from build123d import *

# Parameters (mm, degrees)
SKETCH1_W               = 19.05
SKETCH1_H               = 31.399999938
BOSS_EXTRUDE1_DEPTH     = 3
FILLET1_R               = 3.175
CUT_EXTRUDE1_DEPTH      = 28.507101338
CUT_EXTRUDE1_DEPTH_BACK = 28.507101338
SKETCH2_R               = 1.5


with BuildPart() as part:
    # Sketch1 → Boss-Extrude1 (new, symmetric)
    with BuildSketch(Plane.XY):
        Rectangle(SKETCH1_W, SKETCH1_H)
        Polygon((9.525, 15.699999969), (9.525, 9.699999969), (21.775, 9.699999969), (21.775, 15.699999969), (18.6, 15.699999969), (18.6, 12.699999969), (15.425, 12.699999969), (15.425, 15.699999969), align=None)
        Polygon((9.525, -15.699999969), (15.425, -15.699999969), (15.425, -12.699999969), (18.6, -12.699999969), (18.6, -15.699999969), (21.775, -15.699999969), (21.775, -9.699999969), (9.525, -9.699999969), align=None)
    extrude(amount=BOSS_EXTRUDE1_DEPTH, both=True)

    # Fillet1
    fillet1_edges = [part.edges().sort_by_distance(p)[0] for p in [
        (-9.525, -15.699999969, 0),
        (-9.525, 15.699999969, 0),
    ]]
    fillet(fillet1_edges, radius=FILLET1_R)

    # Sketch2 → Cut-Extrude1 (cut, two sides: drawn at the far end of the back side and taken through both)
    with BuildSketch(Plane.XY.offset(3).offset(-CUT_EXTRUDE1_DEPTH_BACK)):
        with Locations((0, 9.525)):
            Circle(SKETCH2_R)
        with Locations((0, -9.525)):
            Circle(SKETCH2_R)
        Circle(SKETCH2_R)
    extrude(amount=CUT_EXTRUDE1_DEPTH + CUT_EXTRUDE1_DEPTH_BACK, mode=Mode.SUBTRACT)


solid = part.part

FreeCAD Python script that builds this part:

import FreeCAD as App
import Part
import Sketcher
from FreeCAD import Vector


def edges_at(feature, points):
    """Names of the edges that pass closest to the given points."""
    edges = feature.Shape.Edges
    near = lambda p: min(range(len(edges)), key=lambda i: edges[i].distToShape(Part.Vertex(*p))[0])
    return sorted({f"Edge{near(p) + 1}" for p in points})


def add_polygon(sketch, points):
    """Adds a closed chain of lines whose ends are joined by coincident constraints."""
    first, n = sketch.GeometryCount, len(points)
    for a, b in zip(points, points[1:] + points[:1]):
        sketch.addGeometry(Part.LineSegment(App.Vector(*a, 0), App.Vector(*b, 0)), False)
    for i in range(n):
        sketch.addConstraint(Sketcher.Constraint("Coincident", first + i, 2, first + (i + 1) % n, 1))

doc = App.newDocument("Part")
body = doc.addObject("PartDesign::Body", "Body")

sketch1 = body.newObject("Sketcher::SketchObject", "Sketch")
sketch1.AttachmentSupport = (doc.getObject("XY_Plane"), [""])
sketch1.MapMode = "FlatFace"
add_polygon(sketch1, [(-9.5, 15.7), (-9.5, -15.7), (15.4, -15.7), (15.4, -12.7), (18.6, -12.7), (18.6, -15.7), (21.8, -15.7), (21.8, -9.7), (9.5, -9.7), (9.5, 9.7), (21.8, 9.7), (21.8, 15.7), (18.6, 15.7), (18.6, 12.7), (15.4, 12.7), (15.4, 15.7)])
sketch1.addConstraint([
    Sketcher.Constraint("Vertical", 0),
    Sketcher.Constraint("Horizontal", 1),
    Sketcher.Constraint("Vertical", 2),
    Sketcher.Constraint("Horizontal", 3),
    Sketcher.Constraint("Vertical", 4),
    Sketcher.Constraint("Horizontal", 5),
    Sketcher.Constraint("Vertical", 6),
    Sketcher.Constraint("Horizontal", 7),
    Sketcher.Constraint("Vertical", 8),
    Sketcher.Constraint("Horizontal", 9),
    Sketcher.Constraint("Vertical", 10),
    Sketcher.Constraint("Horizontal", 11),
    Sketcher.Constraint("Vertical", 12),
    Sketcher.Constraint("Horizontal", 13),
    Sketcher.Constraint("Vertical", 14),
    Sketcher.Constraint("Horizontal", 15),
    Sketcher.Constraint("Symmetric", 6, 2, 9, 2, -1),
    Sketcher.Constraint("Symmetric", 4, 2, 11, 2, -1),
    Sketcher.Constraint("Symmetric", 2, 2, 13, 2, -1),
    Sketcher.Constraint("Horizontal", 1, 2, 4, 2),
    Sketcher.Constraint("Horizontal", 11, 2, 14, 2),
    Sketcher.Constraint("Equal", 3, 5),
    Sketcher.Constraint("DistanceY", 2, 1, 2, 2, 3.0),
    Sketcher.Constraint("DistanceY", 6, 1, 6, 2, 6.0),
    Sketcher.Constraint("DistanceY", 0, 2, 0, 1, 31.4),
    Sketcher.Constraint("DistanceX", 1, 1, 1, 2, 24.95),
    Sketcher.Constraint("DistanceX", 7, 2, 7, 1, 12.25),
    Sketcher.Constraint("DistanceX", -1, 1, 3, 2, 18.6),
    Sketcher.Constraint("DistanceX", 0, 2, 5, 2, 31.3),
])
pad1 = body.newObject("PartDesign::Pad", "Pad")
pad1.Profile = sketch1
pad1.Length = 6
pad1.Midplane = True
doc.recompute()

fillet = body.newObject("PartDesign::Fillet", "Fillet")
fillet.Base = (pad1, edges_at(pad1, [(-9.525, -15.7, 0), (-9.525, 15.7, 0)]))
fillet.Radius = 3.175

sketch2 = body.newObject("Sketcher::SketchObject", "Sketch001")
sketch2.AttachmentSupport = (doc.getObject("XY_Plane"), [""])
sketch2.MapMode = "FlatFace"
sketch2.AttachmentOffset = App.Placement(Vector(0, 0, 3), App.Rotation())
sketch2.addGeometry([
    Part.Circle(Vector(0, 9.5, 0), Vector(0, 0, 1), 1.5),
    Part.Circle(Vector(0, -9.5, 0), Vector(0, 0, 1), 1.5),
    Part.Circle(Vector(0, 0, 0), Vector(0, 0, 1), 1.5),
], False)
sketch2.addConstraint([
    Sketcher.Constraint("Coincident", 2, 3, -1, 1),
    Sketcher.Constraint("Equal", 0, 1),
    Sketcher.Constraint("Equal", 1, 2),
    Sketcher.Constraint("Symmetric", 0, 3, 1, 3, -1, 1),
    Sketcher.Constraint("PointOnObject", 0, 3, -2),
    Sketcher.Constraint("Diameter", 0, 3.0),
    Sketcher.Constraint("DistanceY", 1, 3, 0, 3, 19.05),
])
pocket1 = body.newObject("PartDesign::Pocket", "Pocket")
pocket1.Profile = sketch2
pocket1.Type = "ThroughAll"
pocket1.Midplane = True

doc.recompute()
